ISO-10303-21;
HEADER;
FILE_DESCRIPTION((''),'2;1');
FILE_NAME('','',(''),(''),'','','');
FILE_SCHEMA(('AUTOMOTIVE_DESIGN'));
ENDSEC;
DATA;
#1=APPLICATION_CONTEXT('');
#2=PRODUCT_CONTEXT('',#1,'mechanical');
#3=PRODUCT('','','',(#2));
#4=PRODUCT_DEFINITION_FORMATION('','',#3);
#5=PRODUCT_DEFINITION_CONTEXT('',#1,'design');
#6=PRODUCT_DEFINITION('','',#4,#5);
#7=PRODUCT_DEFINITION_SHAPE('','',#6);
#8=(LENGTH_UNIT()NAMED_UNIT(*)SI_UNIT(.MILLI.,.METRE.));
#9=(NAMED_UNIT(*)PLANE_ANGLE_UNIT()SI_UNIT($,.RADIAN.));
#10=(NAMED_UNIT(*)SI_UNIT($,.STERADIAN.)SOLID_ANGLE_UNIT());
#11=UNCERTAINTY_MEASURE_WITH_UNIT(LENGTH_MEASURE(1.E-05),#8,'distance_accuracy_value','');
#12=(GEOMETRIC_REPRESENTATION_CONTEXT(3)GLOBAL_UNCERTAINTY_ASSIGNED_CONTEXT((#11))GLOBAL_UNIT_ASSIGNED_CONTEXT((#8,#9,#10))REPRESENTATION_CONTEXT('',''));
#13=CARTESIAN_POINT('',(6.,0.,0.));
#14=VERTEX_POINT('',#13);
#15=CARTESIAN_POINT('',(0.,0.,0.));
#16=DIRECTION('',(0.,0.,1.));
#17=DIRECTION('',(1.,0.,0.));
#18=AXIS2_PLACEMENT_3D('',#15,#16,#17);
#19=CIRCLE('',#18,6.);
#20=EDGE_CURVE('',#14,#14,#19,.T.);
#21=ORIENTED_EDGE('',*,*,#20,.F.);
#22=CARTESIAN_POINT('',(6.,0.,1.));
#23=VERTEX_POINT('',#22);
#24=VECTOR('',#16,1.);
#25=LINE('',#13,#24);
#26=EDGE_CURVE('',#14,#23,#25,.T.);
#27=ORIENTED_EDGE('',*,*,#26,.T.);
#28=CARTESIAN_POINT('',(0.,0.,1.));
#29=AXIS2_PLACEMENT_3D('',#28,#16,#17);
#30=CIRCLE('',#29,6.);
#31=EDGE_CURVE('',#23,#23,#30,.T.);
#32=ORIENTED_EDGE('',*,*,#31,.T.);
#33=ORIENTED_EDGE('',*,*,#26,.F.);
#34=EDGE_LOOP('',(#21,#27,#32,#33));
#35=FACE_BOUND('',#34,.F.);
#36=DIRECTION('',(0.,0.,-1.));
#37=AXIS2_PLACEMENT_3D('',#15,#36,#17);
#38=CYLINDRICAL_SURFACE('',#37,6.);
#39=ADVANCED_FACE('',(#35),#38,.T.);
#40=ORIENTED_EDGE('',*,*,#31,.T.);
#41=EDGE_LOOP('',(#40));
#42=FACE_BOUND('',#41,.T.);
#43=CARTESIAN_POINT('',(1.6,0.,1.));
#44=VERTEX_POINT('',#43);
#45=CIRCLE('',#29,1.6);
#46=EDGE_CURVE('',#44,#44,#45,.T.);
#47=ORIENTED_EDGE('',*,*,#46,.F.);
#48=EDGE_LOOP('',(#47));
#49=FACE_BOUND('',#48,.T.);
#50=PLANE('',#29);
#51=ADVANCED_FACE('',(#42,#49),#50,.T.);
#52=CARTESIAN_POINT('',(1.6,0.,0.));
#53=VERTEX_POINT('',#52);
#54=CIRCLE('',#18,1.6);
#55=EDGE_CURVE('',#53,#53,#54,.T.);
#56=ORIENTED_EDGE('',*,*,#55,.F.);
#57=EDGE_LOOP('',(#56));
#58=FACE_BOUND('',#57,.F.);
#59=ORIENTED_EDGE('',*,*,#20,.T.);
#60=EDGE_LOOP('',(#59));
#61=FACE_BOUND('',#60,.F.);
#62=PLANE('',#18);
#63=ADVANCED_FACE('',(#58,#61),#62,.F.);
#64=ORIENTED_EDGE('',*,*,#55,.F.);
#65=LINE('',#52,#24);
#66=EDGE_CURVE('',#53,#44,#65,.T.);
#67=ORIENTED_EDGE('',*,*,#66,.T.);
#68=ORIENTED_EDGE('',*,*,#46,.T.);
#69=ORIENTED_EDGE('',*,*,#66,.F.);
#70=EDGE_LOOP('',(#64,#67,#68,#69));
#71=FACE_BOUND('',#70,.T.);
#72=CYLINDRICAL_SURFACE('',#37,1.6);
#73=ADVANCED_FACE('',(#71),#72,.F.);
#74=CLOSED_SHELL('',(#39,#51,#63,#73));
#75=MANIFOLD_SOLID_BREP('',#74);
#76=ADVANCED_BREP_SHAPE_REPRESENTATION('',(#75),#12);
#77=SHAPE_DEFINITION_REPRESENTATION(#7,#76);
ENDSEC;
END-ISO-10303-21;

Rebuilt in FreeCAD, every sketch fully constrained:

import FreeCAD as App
import Part
import Sketcher
from FreeCAD import Vector

doc = App.newDocument("Part")
body = doc.addObject("PartDesign::Body", "Body")

# Sketch on XY plane
sketch1 = doc.addObject("Sketcher::SketchObject", "Sketch")
body.addObject(sketch1)
sketch1.AttachmentSupport = (doc.XY_Plane, [""])
sketch1.MapMode = "FlatFace"
sketch1.addGeometry([
    Part.Circle(Vector(0, 0, 0), Vector(0, 0, 1), 6),
    Part.Circle(Vector(0, 0, 0), Vector(0, 0, 1), 1.6),
], False)
sketch1.addConstraint([
    Sketcher.Constraint("Coincident", 0, 3, -1, 1),
    Sketcher.Constraint("Coincident", 1, 3, -1, 1),
    Sketcher.Constraint("Diameter", 0, 12.0),
    Sketcher.Constraint("Diameter", 1, 3.2),
])
pad1 = doc.addObject("PartDesign::Pad", "Pad")
body.addObject(pad1)
pad1.Profile = sketch1
pad1.Length = 1

doc.recompute()
